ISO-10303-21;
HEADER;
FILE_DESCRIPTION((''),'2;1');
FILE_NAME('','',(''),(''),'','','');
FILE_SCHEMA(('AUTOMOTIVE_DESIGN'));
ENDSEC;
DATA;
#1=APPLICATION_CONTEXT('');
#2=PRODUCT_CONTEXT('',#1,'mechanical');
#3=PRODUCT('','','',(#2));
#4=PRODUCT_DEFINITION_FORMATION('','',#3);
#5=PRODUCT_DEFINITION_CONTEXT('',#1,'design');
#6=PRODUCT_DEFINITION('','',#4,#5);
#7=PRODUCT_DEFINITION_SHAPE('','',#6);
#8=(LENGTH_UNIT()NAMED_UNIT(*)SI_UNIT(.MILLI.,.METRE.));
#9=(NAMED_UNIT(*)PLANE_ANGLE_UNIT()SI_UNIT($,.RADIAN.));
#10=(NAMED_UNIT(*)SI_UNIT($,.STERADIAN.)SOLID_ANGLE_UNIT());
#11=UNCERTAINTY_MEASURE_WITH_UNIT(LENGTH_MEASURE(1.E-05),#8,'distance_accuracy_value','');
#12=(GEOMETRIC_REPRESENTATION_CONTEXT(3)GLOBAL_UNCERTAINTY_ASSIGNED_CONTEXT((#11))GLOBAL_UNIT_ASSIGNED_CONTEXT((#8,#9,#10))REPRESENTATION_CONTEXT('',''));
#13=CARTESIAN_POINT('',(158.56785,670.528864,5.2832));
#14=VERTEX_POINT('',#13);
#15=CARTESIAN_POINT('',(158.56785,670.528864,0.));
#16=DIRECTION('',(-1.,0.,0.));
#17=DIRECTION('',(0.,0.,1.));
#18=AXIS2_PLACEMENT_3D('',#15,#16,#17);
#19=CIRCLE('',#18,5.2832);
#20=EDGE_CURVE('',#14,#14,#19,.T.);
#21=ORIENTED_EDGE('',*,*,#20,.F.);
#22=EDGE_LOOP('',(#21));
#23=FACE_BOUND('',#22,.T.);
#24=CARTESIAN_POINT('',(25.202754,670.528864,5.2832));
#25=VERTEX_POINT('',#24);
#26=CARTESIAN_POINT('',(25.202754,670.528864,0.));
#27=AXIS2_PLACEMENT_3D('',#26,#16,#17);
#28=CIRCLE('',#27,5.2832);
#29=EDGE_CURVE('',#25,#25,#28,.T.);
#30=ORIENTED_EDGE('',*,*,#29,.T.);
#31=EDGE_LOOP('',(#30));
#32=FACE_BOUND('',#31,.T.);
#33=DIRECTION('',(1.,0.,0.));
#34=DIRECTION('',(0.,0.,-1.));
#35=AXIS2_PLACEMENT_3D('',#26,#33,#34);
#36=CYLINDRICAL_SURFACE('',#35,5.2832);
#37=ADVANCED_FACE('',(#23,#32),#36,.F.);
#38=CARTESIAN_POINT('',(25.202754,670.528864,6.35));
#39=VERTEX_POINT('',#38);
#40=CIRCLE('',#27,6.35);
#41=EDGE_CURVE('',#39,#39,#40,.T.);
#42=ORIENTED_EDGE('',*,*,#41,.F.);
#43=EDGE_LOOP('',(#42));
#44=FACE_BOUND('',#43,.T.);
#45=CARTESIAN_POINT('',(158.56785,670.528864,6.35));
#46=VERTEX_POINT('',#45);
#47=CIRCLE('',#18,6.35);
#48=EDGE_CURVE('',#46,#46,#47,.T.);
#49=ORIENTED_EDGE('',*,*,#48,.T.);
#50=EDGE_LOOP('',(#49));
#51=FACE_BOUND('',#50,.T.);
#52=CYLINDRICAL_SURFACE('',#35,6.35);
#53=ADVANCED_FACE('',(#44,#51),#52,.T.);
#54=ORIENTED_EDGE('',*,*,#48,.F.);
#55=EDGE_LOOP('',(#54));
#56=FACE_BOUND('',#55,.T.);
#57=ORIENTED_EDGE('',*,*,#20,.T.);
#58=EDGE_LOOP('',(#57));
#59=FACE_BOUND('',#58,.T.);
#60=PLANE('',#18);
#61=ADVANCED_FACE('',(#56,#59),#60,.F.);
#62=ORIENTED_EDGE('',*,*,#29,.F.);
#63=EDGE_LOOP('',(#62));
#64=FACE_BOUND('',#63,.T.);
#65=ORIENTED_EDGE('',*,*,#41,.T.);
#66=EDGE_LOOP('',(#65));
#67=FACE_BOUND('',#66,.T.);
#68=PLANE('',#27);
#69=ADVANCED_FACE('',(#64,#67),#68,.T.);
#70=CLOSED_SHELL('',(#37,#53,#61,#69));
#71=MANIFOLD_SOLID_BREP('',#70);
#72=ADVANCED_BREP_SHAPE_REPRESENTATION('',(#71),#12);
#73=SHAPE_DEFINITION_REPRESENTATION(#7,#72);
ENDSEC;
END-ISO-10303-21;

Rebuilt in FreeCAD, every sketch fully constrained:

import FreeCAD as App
import Part
import Sketcher
from FreeCAD import Vector
Q = App.Units.Quantity

doc = App.newDocument("Part")
params = doc.addObject("Spreadsheet::Sheet", "Params")
for row, (alias, value) in enumerate([
    ("sketch1_diameter", "0.5 in"),
    ("sketch1_diameter2", "0.416 in"),
    ("pad1_length", "133.365095 mm"),
], start=1):
    params.set(f"A{row}", alias)
    params.set(f"B{row}", "=" + value)
    params.setAlias(f"B{row}", alias)

body = doc.addObject("PartDesign::Body", "Body")

# Sketch on YZ plane
sketch1 = body.newObject("Sketcher::SketchObject", "Sketch")
sketch1.AttachmentSupport = (doc.getObject("YZ_Plane"), [""])
sketch1.MapMode = "FlatFace"
sketch1.AttachmentOffset = App.Placement(Vector(0, 0, 158.56785), App.Rotation())
sketch1.addGeometry([
    Part.Circle(Vector(671, 0, 0), Vector(0, 0, 1), 6),
    Part.Circle(Vector(671, 0, 0), Vector(0, 0, 1), 5),
], False)
sketch1.addConstraint([
    Sketcher.Constraint("Coincident", 1, 3, 0, 3),
    Sketcher.Constraint("PointOnObject", 0, 3, -1),
    Sketcher.Constraint("Diameter", 0, Q("0.5 in")),
    Sketcher.Constraint("Diameter", 1, Q("0.416 in")),
    Sketcher.Constraint("DistanceX", -1, 1, 0, 3, Q("670.528864 mm")),
])
sketch1.setExpression("Constraints[2]", "Params.sketch1_diameter")
sketch1.setExpression("Constraints[3]", "Params.sketch1_diameter2")
pad1 = body.newObject("PartDesign::Pad", "Pad")
pad1.Profile = sketch1
pad1.setExpression("Length", "Params.pad1_length")
pad1.Reversed = True

doc.recompute()
